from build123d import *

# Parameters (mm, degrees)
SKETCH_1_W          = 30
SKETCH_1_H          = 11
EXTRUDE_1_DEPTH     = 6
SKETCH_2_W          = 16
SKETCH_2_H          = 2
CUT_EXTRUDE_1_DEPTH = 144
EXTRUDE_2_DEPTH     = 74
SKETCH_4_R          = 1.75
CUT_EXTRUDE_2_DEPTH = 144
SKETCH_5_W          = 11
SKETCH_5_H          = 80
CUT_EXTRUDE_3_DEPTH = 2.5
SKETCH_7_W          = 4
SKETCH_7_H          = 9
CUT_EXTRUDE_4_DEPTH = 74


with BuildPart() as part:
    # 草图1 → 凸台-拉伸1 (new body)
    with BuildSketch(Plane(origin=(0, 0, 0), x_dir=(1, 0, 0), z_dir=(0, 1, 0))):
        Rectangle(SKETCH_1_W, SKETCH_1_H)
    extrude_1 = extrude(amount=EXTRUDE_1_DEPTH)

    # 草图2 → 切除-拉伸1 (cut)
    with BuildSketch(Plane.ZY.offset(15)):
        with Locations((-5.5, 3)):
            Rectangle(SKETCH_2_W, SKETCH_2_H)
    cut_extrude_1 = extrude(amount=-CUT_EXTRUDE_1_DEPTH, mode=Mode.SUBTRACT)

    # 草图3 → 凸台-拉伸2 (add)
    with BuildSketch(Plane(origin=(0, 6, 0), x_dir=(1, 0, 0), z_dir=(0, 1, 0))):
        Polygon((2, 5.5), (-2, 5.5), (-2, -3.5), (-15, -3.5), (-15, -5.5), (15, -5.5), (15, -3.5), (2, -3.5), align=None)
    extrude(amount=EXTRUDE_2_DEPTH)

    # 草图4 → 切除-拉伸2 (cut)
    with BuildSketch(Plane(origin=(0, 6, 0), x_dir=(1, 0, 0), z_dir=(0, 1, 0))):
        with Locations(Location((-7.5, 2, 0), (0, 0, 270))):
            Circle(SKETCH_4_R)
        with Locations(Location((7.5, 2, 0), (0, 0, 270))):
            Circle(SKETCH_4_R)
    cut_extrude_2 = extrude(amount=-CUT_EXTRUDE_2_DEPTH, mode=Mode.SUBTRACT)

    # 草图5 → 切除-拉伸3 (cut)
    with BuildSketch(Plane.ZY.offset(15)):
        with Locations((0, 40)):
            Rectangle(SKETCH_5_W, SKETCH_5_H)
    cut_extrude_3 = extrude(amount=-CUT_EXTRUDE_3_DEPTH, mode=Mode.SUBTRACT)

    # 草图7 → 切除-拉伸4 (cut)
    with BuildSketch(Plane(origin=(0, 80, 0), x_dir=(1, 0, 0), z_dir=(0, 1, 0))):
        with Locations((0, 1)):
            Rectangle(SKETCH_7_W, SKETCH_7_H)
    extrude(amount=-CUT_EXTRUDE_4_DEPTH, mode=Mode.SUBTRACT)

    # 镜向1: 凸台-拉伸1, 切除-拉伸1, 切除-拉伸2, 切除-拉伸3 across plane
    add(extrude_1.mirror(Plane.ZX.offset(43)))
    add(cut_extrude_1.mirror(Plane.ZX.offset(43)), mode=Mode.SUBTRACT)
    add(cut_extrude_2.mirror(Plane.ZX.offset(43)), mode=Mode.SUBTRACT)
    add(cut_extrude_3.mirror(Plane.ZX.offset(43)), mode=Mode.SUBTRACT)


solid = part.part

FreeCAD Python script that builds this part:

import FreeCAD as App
import Part
import Sketcher

doc = App.newDocument("Part")
body = doc.addObject("PartDesign::Body", "Body")

# Sketch on XZ plane
sketch1 = body.newObject("Sketcher::SketchObject", "Sketch")
sketch1.AttachmentSupport = (doc.getObject("XZ_Plane"), [""])
sketch1.MapMode = "FlatFace"
sketch1.addGeometry(Part.LineSegment(App.Vector(-15, -6, 0), App.Vector(-15, 6, 0)), False)
sketch1.addGeometry(Part.LineSegment(App.Vector(-15, 6, 0), App.Vector(15, 6, 0)), False)
sketch1.addGeometry(Part.LineSegment(App.Vector(15, 6, 0), App.Vector(15, -6, 0)), False)
sketch1.addGeometry(Part.LineSegment(App.Vector(15, -6, 0), App.Vector(-15, -6, 0)), False)
sketch1.addConstraint(Sketcher.Constraint("Coincident", 0, 2, 1, 1))
sketch1.addConstraint(Sketcher.Constraint("Coincident", 1, 2, 2, 1))
sketch1.addConstraint(Sketcher.Constraint("Coincident", 2, 2, 3, 1))
sketch1.addConstraint(Sketcher.Constraint("Coincident", 3, 2, 0, 1))
sketch1.addConstraint(Sketcher.Constraint("Vertical", 0))
sketch1.addConstraint(Sketcher.Constraint("Horizontal", 1))
sketch1.addConstraint(Sketcher.Constraint("Vertical", 2))
sketch1.addConstraint(Sketcher.Constraint("Horizontal", 3))
sketch1.addConstraint(Sketcher.Constraint("Symmetric", 0, 2, 2, 2, -1, 1))
sketch1.addConstraint(Sketcher.Constraint("DistanceX", 1, 1, 1, 2, 30.0))
sketch1.addConstraint(Sketcher.Constraint("DistanceY", 0, 1, 0, 2, 11.0))
pad1 = body.newObject("PartDesign::Pad", "Pad")
pad1.Profile = sketch1
pad1.Length = 6
pad1.Reversed = True

# Sketch on YZ plane
sketch2 = body.newObject("Sketcher::SketchObject", "Sketch001")
sketch2.AttachmentSupport = (doc.getObject("YZ_Plane"), [""])
sketch2.MapMode = "FlatFace"
sketch2.AttachmentOffset = App.Placement(App.Vector(0, 0, -15), App.Rotation())
sketch2.addGeometry(Part.LineSegment(App.Vector(4, -13.5, 0), App.Vector(2, -13.5, 0)), False)
sketch2.addGeometry(Part.LineSegment(App.Vector(2, -13.5, 0), App.Vector(2, 2.5, 0)), False)
sketch2.addGeometry(Part.LineSegment(App.Vector(2, 2.5, 0), App.Vector(4, 2.5, 0)), False)
sketch2.addGeometry(Part.LineSegment(App.Vector(4, 2.5, 0), App.Vector(4, -13.5, 0)), False)
sketch2.addConstraint(Sketcher.Constraint("Coincident", 0, 2, 1, 1))
sketch2.addConstraint(Sketcher.Constraint("Coincident", 1, 2, 2, 1))
sketch2.addConstraint(Sketcher.Constraint("Coincident", 2, 2, 3, 1))
sketch2.addConstraint(Sketcher.Constraint("Coincident", 3, 2, 0, 1))
sketch2.addConstraint(Sketcher.Constraint("Horizontal", 0))
sketch2.addConstraint(Sketcher.Constraint("Vertical", 1))
sketch2.addConstraint(Sketcher.Constraint("Horizontal", 2))
sketch2.addConstraint(Sketcher.Constraint("Vertical", 3))
sketch2.addConstraint(Sketcher.Constraint("DistanceX", 0, 2, 0, 1, 2.0))
sketch2.addConstraint(Sketcher.Constraint("DistanceY", 1, 1, 1, 2, 16.0))
sketch2.addConstraint(Sketcher.Constraint("DistanceX", -1, 1, 0, 2, 2.0))
sketch2.addConstraint(Sketcher.Constraint("DistanceY", 0, 2, -1, 1, 13.5))
pocket1 = body.newObject("PartDesign::Pocket", "Pocket")
pocket1.Profile = sketch2
pocket1.Length = 144
pocket1.Reversed = True

# Sketch on XZ plane
sketch3 = body.newObject("Sketcher::SketchObject", "Sketch002")
sketch3.AttachmentSupport = (doc.getObject("XZ_Plane"), [""])
sketch3.MapMode = "FlatFace"
sketch3.AttachmentOffset = App.Placement(App.Vector(0, 0, -6), App.Rotation())
sketch3.addGeometry(Part.LineSegment(App.Vector(2, -5.5, 0), App.Vector(-2, -5.5, 0)), False)
sketch3.addGeometry(Part.LineSegment(App.Vector(-2, -5.5, 0), App.Vector(-2, 3.5, 0)), False)
sketch3.addGeometry(Part.LineSegment(App.Vector(-2, 3.5, 0), App.Vector(-15, 3.5, 0)), False)
sketch3.addGeometry(Part.LineSegment(App.Vector(-15, 3.5, 0), App.Vector(-15, 5.5, 0)), False)
sketch3.addGeometry(Part.LineSegment(App.Vector(-15, 5.5, 0), App.Vector(15, 5.5, 0)), False)
sketch3.addGeometry(Part.LineSegment(App.Vector(15, 5.5, 0), App.Vector(15, 3.5, 0)), False)
sketch3.addGeometry(Part.LineSegment(App.Vector(15, 3.5, 0), App.Vector(2, 3.5, 0)), False)
sketch3.addGeometry(Part.LineSegment(App.Vector(2, 3.5, 0), App.Vector(2, -5.5, 0)), False)
sketch3.addConstraint(Sketcher.Constraint("Coincident", 0, 2, 1, 1))
sketch3.addConstraint(Sketcher.Constraint("Coincident", 1, 2, 2, 1))
sketch3.addConstraint(Sketcher.Constraint("Coincident", 2, 2, 3, 1))
sketch3.addConstraint(Sketcher.Constraint("Coincident", 3, 2, 4, 1))
sketch3.addConstraint(Sketcher.Constraint("Coincident", 4, 2, 5, 1))
sketch3.addConstraint(Sketcher.Constraint("Coincident", 5, 2, 6, 1))
sketch3.addConstraint(Sketcher.Constraint("Coincident", 6, 2, 7, 1))
sketch3.addConstraint(Sketcher.Constraint("Coincident", 7, 2, 0, 1))
sketch3.addConstraint(Sketcher.Constraint("Horizontal", 0))
sketch3.addConstraint(Sketcher.Constraint("Vertical", 1))
sketch3.addConstraint(Sketcher.Constraint("Horizontal", 2))
sketch3.addConstraint(Sketcher.Constraint("Vertical", 3))
sketch3.addConstraint(Sketcher.Constraint("Horizontal", 4))
sketch3.addConstraint(Sketcher.Constraint("Vertical", 5))
sketch3.addConstraint(Sketcher.Constraint("Horizontal", 6))
sketch3.addConstraint(Sketcher.Constraint("Vertical", 7))
sketch3.addConstraint(Sketcher.Constraint("Symmetric", 2, 2, 5, 2, -2))
sketch3.addConstraint(Sketcher.Constraint("Equal", 2, 6))
sketch3.addConstraint(Sketcher.Constraint("DistanceX", 0, 2, 0, 1, 4.0))
sketch3.addConstraint(Sketcher.Constraint("DistanceX", 2, 2, 2, 1, 13.0))
sketch3.addConstraint(Sketcher.Constraint("DistanceY", 1, 1, 1, 2, 9.0))
sketch3.addConstraint(Sketcher.Constraint("DistanceY", 3, 1, 3, 2, 2.0))
sketch3.addConstraint(Sketcher.Constraint("DistanceY", 0, 2, -1, 1, 5.5))
pad2 = body.newObject("PartDesign::Pad", "Pad001")
pad2.Profile = sketch3
pad2.Length = 74
pad2.Reversed = True

# Sketch on XZ plane
sketch4 = body.newObject("Sketcher::SketchObject", "Sketch003")
sketch4.AttachmentSupport = (doc.getObject("XZ_Plane"), [""])
sketch4.MapMode = "FlatFace"
sketch4.AttachmentOffset = App.Placement(App.Vector(0, 0, -6), App.Rotation())
sketch4.addGeometry(Part.Circle(App.Vector(-7.5, -2, 0), App.Vector(0, 0, 1), 1.8), False)
sketch4.addGeometry(Part.Circle(App.Vector(7.5, -2, 0), App.Vector(0, 0, 1), 1.8), False)
sketch4.addConstraint(Sketcher.Constraint("Equal", 0, 1))
sketch4.addConstraint(Sketcher.Constraint("Symmetric", 0, 3, 1, 3, -2))
sketch4.addConstraint(Sketcher.Constraint("Diameter", 0, 3.5))
sketch4.addConstraint(Sketcher.Constraint("DistanceY", 0, 3, -1, 1, 2.0))
sketch4.addConstraint(Sketcher.Constraint("DistanceX", 0, 3, 1, 3, 15.0))
pocket2 = body.newObject("PartDesign::Pocket", "Pocket001")
pocket2.Profile = sketch4
pocket2.Length = 144
pocket2.Reversed = True

# Sketch on YZ plane
sketch5 = body.newObject("Sketcher::SketchObject", "Sketch004")
sketch5.AttachmentSupport = (doc.getObject("YZ_Plane"), [""])
sketch5.MapMode = "FlatFace"
sketch5.AttachmentOffset = App.Placement(App.Vector(0, 0, -15), App.Rotation())
sketch5.addGeometry(Part.LineSegment(App.Vector(80, -6, 0), App.Vector(0, -6, 0)), False)
sketch5.addGeometry(Part.LineSegment(App.Vector(0, -6, 0), App.Vector(0, 6, 0)), False)
sketch5.addGeometry(Part.LineSegment(App.Vector(0, 6, 0), App.Vector(80, 6, 0)), False)
sketch5.addGeometry(Part.LineSegment(App.Vector(80, 6, 0), App.Vector(80, -6, 0)), False)
sketch5.addConstraint(Sketcher.Constraint("Coincident", 0, 2, 1, 1))
sketch5.addConstraint(Sketcher.Constraint("Coincident", 1, 2, 2, 1))
sketch5.addConstraint(Sketcher.Constraint("Coincident", 2, 2, 3, 1))
sketch5.addConstraint(Sketcher.Constraint("Coincident", 3, 2, 0, 1))
sketch5.addConstraint(Sketcher.Constraint("Horizontal", 0))
sketch5.addConstraint(Sketcher.Constraint("Vertical", 1))
sketch5.addConstraint(Sketcher.Constraint("Horizontal", 2))
sketch5.addConstraint(Sketcher.Constraint("Vertical", 3))
sketch5.addConstraint(Sketcher.Constraint("Symmetric", 0, 2, 1, 2, -1, 1))
sketch5.addConstraint(Sketcher.Constraint("DistanceX", 0, 2, 0, 1, 80.0))
sketch5.addConstraint(Sketcher.Constraint("DistanceY", 1, 1, 1, 2, 11.0))
pocket3 = body.newObject("PartDesign::Pocket", "Pocket002")
pocket3.Profile = sketch5
pocket3.Length = 2.5
pocket3.Reversed = True

# Sketch on XZ plane
sketch6 = body.newObject("Sketcher::SketchObject", "Sketch005")
sketch6.AttachmentSupport = (doc.getObject("XZ_Plane"), [""])
sketch6.MapMode = "FlatFace"
sketch6.AttachmentOffset = App.Placement(App.Vector(0, 0, -80), App.Rotation())
sketch6.addGeometry(Part.LineSegment(App.Vector(-2, -5.5, 0), App.Vector(-2, 3.5, 0)), False)
sketch6.addGeometry(Part.LineSegment(App.Vector(-2, 3.5, 0), App.Vector(2, 3.5, 0)), False)
sketch6.addGeometry(Part.LineSegment(App.Vector(2, 3.5, 0), App.Vector(2, -5.5, 0)), False)
sketch6.addGeometry(Part.LineSegment(App.Vector(2, -5.5, 0), App.Vector(-2, -5.5, 0)), False)
sketch6.addConstraint(Sketcher.Constraint("Coincident", 0, 2, 1, 1))
sketch6.addConstraint(Sketcher.Constraint("Coincident", 1, 2, 2, 1))
sketch6.addConstraint(Sketcher.Constraint("Coincident", 2, 2, 3, 1))
sketch6.addConstraint(Sketcher.Constraint("Coincident", 3, 2, 0, 1))
sketch6.addConstraint(Sketcher.Constraint("Vertical", 0))
sketch6.addConstraint(Sketcher.Constraint("Horizontal", 1))
sketch6.addConstraint(Sketcher.Constraint("Vertical", 2))
sketch6.addConstraint(Sketcher.Constraint("Horizontal", 3))
sketch6.addConstraint(Sketcher.Constraint("DistanceX", 1, 1, 1, 2, 4.0))
sketch6.addConstraint(Sketcher.Constraint("DistanceY", 0, 1, 0, 2, 9.0))
sketch6.addConstraint(Sketcher.Constraint("DistanceX", 0, 2, -1, 1, 2.0))
sketch6.addConstraint(Sketcher.Constraint("DistanceY", -1, 1, 0, 2, 3.5))
pocket4 = body.newObject("PartDesign::Pocket", "Pocket003")
pocket4.Profile = sketch6
pocket4.Length = 74
pocket4.Reversed = True
doc.recompute()

datumplane = body.newObject("PartDesign::Plane", "DatumPlane")
datumplane.AttachmentSupport = (doc.getObject("XZ_Plane"), [""])
datumplane.MapMode = "FlatFace"
datumplane.AttachmentOffset = App.Placement(App.Vector(0, 0, -43), App.Rotation())
mirrored = body.newObject("PartDesign::Mirrored", "Mirrored")
mirrored.Originals = [pad1, pocket1, pocket2, pocket3]
mirrored.MirrorPlane = (datumplane, [""])
body.Tip = mirrored

doc.recompute()
